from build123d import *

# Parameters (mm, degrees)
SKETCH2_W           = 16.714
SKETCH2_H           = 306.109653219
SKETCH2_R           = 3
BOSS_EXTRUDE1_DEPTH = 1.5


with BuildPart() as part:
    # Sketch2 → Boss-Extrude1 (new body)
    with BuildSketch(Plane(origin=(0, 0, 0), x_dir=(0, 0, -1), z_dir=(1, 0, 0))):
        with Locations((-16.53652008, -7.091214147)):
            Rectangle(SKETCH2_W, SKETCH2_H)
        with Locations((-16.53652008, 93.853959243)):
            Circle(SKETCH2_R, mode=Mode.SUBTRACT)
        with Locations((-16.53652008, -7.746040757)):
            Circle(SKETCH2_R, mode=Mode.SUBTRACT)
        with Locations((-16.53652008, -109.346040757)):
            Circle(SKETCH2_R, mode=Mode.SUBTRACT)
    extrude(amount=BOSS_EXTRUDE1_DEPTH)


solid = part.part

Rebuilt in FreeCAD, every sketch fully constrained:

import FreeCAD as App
import Part
import Sketcher

V = App.Vector

doc = App.newDocument("Part")
body = doc.addObject("PartDesign::Body", "Body")

sketch1 = doc.addObject("Sketcher::SketchObject", "Sketch")
body.addObject(sketch1)
sketch1.AttachmentSupport = (doc.YZ_Plane, [""])
sketch1.MapMode = "FlatFace"
sketch1.addGeometry(Part.LineSegment(V(146, 24.9, 0), V(-160.1, 24.9, 0)), False)
sketch1.addGeometry(Part.LineSegment(V(-160.1, 24.9, 0), V(-160.1, 8.2, 0)), False)
sketch1.addGeometry(Part.LineSegment(V(-160.1, 8.2, 0), V(146, 8.2, 0)), False)
sketch1.addGeometry(Part.LineSegment(V(146, 8.2, 0), V(146, 24.9, 0)), False)
sketch1.addGeometry(Part.Circle(V(-109.3, 16.5, 0), V(0, 0, 1), 3), False)
sketch1.addGeometry(Part.Circle(V(-7.7, 16.5, 0), V(0, 0, 1), 3), False)
sketch1.addGeometry(Part.Circle(V(93.9, 16.5, 0), V(0, 0, 1), 3), False)
sketch1.addConstraint(Sketcher.Constraint("Coincident", 0, 2, 1, 1))
sketch1.addConstraint(Sketcher.Constraint("Coincident", 1, 2, 2, 1))
sketch1.addConstraint(Sketcher.Constraint("Coincident", 2, 2, 3, 1))
sketch1.addConstraint(Sketcher.Constraint("Coincident", 3, 2, 0, 1))
sketch1.addConstraint(Sketcher.Constraint("Horizontal", 0))
sketch1.addConstraint(Sketcher.Constraint("Vertical", 1))
sketch1.addConstraint(Sketcher.Constraint("Horizontal", 2))
sketch1.addConstraint(Sketcher.Constraint("Vertical", 3))
sketch1.addConstraint(Sketcher.Constraint("Equal", 4, 5))
sketch1.addConstraint(Sketcher.Constraint("Equal", 5, 6))
sketch1.addConstraint(Sketcher.Constraint("Horizontal", 4, 3, 5, 3))
sketch1.addConstraint(Sketcher.Constraint("Horizontal", 5, 3, 6, 3))
sketch1.addConstraint(Sketcher.Constraint("Diameter", 4, 6.0))
sketch1.addConstraint(Sketcher.Constraint("DistanceX", 0, 2, 6, 3, 254.0))
sketch1.addConstraint(Sketcher.Constraint("DistanceX", 4, 3, 5, 3, 101.6))
sketch1.addConstraint(Sketcher.Constraint("DistanceX", 5, 3, 6, 3, 101.6))
sketch1.addConstraint(Sketcher.Constraint("DistanceY", 1, 2, 1, 1, 16.714))
sketch1.addConstraint(Sketcher.Constraint("DistanceY", 4, 3, 0, 2, 8.357))
sketch1.addConstraint(Sketcher.Constraint("DistanceX", 0, 2, 0, 1, 306.109653))
sketch1.addConstraint(Sketcher.Constraint("DistanceX", 4, 3, -1, 1, 109.346041))
sketch1.addConstraint(Sketcher.Constraint("DistanceY", -1, 1, 4, 3, 16.53652))
pad1 = doc.addObject("PartDesign::Pad", "Pad")
body.addObject(pad1)
pad1.Profile = sketch1
pad1.Length = 1.5

doc.recompute()
